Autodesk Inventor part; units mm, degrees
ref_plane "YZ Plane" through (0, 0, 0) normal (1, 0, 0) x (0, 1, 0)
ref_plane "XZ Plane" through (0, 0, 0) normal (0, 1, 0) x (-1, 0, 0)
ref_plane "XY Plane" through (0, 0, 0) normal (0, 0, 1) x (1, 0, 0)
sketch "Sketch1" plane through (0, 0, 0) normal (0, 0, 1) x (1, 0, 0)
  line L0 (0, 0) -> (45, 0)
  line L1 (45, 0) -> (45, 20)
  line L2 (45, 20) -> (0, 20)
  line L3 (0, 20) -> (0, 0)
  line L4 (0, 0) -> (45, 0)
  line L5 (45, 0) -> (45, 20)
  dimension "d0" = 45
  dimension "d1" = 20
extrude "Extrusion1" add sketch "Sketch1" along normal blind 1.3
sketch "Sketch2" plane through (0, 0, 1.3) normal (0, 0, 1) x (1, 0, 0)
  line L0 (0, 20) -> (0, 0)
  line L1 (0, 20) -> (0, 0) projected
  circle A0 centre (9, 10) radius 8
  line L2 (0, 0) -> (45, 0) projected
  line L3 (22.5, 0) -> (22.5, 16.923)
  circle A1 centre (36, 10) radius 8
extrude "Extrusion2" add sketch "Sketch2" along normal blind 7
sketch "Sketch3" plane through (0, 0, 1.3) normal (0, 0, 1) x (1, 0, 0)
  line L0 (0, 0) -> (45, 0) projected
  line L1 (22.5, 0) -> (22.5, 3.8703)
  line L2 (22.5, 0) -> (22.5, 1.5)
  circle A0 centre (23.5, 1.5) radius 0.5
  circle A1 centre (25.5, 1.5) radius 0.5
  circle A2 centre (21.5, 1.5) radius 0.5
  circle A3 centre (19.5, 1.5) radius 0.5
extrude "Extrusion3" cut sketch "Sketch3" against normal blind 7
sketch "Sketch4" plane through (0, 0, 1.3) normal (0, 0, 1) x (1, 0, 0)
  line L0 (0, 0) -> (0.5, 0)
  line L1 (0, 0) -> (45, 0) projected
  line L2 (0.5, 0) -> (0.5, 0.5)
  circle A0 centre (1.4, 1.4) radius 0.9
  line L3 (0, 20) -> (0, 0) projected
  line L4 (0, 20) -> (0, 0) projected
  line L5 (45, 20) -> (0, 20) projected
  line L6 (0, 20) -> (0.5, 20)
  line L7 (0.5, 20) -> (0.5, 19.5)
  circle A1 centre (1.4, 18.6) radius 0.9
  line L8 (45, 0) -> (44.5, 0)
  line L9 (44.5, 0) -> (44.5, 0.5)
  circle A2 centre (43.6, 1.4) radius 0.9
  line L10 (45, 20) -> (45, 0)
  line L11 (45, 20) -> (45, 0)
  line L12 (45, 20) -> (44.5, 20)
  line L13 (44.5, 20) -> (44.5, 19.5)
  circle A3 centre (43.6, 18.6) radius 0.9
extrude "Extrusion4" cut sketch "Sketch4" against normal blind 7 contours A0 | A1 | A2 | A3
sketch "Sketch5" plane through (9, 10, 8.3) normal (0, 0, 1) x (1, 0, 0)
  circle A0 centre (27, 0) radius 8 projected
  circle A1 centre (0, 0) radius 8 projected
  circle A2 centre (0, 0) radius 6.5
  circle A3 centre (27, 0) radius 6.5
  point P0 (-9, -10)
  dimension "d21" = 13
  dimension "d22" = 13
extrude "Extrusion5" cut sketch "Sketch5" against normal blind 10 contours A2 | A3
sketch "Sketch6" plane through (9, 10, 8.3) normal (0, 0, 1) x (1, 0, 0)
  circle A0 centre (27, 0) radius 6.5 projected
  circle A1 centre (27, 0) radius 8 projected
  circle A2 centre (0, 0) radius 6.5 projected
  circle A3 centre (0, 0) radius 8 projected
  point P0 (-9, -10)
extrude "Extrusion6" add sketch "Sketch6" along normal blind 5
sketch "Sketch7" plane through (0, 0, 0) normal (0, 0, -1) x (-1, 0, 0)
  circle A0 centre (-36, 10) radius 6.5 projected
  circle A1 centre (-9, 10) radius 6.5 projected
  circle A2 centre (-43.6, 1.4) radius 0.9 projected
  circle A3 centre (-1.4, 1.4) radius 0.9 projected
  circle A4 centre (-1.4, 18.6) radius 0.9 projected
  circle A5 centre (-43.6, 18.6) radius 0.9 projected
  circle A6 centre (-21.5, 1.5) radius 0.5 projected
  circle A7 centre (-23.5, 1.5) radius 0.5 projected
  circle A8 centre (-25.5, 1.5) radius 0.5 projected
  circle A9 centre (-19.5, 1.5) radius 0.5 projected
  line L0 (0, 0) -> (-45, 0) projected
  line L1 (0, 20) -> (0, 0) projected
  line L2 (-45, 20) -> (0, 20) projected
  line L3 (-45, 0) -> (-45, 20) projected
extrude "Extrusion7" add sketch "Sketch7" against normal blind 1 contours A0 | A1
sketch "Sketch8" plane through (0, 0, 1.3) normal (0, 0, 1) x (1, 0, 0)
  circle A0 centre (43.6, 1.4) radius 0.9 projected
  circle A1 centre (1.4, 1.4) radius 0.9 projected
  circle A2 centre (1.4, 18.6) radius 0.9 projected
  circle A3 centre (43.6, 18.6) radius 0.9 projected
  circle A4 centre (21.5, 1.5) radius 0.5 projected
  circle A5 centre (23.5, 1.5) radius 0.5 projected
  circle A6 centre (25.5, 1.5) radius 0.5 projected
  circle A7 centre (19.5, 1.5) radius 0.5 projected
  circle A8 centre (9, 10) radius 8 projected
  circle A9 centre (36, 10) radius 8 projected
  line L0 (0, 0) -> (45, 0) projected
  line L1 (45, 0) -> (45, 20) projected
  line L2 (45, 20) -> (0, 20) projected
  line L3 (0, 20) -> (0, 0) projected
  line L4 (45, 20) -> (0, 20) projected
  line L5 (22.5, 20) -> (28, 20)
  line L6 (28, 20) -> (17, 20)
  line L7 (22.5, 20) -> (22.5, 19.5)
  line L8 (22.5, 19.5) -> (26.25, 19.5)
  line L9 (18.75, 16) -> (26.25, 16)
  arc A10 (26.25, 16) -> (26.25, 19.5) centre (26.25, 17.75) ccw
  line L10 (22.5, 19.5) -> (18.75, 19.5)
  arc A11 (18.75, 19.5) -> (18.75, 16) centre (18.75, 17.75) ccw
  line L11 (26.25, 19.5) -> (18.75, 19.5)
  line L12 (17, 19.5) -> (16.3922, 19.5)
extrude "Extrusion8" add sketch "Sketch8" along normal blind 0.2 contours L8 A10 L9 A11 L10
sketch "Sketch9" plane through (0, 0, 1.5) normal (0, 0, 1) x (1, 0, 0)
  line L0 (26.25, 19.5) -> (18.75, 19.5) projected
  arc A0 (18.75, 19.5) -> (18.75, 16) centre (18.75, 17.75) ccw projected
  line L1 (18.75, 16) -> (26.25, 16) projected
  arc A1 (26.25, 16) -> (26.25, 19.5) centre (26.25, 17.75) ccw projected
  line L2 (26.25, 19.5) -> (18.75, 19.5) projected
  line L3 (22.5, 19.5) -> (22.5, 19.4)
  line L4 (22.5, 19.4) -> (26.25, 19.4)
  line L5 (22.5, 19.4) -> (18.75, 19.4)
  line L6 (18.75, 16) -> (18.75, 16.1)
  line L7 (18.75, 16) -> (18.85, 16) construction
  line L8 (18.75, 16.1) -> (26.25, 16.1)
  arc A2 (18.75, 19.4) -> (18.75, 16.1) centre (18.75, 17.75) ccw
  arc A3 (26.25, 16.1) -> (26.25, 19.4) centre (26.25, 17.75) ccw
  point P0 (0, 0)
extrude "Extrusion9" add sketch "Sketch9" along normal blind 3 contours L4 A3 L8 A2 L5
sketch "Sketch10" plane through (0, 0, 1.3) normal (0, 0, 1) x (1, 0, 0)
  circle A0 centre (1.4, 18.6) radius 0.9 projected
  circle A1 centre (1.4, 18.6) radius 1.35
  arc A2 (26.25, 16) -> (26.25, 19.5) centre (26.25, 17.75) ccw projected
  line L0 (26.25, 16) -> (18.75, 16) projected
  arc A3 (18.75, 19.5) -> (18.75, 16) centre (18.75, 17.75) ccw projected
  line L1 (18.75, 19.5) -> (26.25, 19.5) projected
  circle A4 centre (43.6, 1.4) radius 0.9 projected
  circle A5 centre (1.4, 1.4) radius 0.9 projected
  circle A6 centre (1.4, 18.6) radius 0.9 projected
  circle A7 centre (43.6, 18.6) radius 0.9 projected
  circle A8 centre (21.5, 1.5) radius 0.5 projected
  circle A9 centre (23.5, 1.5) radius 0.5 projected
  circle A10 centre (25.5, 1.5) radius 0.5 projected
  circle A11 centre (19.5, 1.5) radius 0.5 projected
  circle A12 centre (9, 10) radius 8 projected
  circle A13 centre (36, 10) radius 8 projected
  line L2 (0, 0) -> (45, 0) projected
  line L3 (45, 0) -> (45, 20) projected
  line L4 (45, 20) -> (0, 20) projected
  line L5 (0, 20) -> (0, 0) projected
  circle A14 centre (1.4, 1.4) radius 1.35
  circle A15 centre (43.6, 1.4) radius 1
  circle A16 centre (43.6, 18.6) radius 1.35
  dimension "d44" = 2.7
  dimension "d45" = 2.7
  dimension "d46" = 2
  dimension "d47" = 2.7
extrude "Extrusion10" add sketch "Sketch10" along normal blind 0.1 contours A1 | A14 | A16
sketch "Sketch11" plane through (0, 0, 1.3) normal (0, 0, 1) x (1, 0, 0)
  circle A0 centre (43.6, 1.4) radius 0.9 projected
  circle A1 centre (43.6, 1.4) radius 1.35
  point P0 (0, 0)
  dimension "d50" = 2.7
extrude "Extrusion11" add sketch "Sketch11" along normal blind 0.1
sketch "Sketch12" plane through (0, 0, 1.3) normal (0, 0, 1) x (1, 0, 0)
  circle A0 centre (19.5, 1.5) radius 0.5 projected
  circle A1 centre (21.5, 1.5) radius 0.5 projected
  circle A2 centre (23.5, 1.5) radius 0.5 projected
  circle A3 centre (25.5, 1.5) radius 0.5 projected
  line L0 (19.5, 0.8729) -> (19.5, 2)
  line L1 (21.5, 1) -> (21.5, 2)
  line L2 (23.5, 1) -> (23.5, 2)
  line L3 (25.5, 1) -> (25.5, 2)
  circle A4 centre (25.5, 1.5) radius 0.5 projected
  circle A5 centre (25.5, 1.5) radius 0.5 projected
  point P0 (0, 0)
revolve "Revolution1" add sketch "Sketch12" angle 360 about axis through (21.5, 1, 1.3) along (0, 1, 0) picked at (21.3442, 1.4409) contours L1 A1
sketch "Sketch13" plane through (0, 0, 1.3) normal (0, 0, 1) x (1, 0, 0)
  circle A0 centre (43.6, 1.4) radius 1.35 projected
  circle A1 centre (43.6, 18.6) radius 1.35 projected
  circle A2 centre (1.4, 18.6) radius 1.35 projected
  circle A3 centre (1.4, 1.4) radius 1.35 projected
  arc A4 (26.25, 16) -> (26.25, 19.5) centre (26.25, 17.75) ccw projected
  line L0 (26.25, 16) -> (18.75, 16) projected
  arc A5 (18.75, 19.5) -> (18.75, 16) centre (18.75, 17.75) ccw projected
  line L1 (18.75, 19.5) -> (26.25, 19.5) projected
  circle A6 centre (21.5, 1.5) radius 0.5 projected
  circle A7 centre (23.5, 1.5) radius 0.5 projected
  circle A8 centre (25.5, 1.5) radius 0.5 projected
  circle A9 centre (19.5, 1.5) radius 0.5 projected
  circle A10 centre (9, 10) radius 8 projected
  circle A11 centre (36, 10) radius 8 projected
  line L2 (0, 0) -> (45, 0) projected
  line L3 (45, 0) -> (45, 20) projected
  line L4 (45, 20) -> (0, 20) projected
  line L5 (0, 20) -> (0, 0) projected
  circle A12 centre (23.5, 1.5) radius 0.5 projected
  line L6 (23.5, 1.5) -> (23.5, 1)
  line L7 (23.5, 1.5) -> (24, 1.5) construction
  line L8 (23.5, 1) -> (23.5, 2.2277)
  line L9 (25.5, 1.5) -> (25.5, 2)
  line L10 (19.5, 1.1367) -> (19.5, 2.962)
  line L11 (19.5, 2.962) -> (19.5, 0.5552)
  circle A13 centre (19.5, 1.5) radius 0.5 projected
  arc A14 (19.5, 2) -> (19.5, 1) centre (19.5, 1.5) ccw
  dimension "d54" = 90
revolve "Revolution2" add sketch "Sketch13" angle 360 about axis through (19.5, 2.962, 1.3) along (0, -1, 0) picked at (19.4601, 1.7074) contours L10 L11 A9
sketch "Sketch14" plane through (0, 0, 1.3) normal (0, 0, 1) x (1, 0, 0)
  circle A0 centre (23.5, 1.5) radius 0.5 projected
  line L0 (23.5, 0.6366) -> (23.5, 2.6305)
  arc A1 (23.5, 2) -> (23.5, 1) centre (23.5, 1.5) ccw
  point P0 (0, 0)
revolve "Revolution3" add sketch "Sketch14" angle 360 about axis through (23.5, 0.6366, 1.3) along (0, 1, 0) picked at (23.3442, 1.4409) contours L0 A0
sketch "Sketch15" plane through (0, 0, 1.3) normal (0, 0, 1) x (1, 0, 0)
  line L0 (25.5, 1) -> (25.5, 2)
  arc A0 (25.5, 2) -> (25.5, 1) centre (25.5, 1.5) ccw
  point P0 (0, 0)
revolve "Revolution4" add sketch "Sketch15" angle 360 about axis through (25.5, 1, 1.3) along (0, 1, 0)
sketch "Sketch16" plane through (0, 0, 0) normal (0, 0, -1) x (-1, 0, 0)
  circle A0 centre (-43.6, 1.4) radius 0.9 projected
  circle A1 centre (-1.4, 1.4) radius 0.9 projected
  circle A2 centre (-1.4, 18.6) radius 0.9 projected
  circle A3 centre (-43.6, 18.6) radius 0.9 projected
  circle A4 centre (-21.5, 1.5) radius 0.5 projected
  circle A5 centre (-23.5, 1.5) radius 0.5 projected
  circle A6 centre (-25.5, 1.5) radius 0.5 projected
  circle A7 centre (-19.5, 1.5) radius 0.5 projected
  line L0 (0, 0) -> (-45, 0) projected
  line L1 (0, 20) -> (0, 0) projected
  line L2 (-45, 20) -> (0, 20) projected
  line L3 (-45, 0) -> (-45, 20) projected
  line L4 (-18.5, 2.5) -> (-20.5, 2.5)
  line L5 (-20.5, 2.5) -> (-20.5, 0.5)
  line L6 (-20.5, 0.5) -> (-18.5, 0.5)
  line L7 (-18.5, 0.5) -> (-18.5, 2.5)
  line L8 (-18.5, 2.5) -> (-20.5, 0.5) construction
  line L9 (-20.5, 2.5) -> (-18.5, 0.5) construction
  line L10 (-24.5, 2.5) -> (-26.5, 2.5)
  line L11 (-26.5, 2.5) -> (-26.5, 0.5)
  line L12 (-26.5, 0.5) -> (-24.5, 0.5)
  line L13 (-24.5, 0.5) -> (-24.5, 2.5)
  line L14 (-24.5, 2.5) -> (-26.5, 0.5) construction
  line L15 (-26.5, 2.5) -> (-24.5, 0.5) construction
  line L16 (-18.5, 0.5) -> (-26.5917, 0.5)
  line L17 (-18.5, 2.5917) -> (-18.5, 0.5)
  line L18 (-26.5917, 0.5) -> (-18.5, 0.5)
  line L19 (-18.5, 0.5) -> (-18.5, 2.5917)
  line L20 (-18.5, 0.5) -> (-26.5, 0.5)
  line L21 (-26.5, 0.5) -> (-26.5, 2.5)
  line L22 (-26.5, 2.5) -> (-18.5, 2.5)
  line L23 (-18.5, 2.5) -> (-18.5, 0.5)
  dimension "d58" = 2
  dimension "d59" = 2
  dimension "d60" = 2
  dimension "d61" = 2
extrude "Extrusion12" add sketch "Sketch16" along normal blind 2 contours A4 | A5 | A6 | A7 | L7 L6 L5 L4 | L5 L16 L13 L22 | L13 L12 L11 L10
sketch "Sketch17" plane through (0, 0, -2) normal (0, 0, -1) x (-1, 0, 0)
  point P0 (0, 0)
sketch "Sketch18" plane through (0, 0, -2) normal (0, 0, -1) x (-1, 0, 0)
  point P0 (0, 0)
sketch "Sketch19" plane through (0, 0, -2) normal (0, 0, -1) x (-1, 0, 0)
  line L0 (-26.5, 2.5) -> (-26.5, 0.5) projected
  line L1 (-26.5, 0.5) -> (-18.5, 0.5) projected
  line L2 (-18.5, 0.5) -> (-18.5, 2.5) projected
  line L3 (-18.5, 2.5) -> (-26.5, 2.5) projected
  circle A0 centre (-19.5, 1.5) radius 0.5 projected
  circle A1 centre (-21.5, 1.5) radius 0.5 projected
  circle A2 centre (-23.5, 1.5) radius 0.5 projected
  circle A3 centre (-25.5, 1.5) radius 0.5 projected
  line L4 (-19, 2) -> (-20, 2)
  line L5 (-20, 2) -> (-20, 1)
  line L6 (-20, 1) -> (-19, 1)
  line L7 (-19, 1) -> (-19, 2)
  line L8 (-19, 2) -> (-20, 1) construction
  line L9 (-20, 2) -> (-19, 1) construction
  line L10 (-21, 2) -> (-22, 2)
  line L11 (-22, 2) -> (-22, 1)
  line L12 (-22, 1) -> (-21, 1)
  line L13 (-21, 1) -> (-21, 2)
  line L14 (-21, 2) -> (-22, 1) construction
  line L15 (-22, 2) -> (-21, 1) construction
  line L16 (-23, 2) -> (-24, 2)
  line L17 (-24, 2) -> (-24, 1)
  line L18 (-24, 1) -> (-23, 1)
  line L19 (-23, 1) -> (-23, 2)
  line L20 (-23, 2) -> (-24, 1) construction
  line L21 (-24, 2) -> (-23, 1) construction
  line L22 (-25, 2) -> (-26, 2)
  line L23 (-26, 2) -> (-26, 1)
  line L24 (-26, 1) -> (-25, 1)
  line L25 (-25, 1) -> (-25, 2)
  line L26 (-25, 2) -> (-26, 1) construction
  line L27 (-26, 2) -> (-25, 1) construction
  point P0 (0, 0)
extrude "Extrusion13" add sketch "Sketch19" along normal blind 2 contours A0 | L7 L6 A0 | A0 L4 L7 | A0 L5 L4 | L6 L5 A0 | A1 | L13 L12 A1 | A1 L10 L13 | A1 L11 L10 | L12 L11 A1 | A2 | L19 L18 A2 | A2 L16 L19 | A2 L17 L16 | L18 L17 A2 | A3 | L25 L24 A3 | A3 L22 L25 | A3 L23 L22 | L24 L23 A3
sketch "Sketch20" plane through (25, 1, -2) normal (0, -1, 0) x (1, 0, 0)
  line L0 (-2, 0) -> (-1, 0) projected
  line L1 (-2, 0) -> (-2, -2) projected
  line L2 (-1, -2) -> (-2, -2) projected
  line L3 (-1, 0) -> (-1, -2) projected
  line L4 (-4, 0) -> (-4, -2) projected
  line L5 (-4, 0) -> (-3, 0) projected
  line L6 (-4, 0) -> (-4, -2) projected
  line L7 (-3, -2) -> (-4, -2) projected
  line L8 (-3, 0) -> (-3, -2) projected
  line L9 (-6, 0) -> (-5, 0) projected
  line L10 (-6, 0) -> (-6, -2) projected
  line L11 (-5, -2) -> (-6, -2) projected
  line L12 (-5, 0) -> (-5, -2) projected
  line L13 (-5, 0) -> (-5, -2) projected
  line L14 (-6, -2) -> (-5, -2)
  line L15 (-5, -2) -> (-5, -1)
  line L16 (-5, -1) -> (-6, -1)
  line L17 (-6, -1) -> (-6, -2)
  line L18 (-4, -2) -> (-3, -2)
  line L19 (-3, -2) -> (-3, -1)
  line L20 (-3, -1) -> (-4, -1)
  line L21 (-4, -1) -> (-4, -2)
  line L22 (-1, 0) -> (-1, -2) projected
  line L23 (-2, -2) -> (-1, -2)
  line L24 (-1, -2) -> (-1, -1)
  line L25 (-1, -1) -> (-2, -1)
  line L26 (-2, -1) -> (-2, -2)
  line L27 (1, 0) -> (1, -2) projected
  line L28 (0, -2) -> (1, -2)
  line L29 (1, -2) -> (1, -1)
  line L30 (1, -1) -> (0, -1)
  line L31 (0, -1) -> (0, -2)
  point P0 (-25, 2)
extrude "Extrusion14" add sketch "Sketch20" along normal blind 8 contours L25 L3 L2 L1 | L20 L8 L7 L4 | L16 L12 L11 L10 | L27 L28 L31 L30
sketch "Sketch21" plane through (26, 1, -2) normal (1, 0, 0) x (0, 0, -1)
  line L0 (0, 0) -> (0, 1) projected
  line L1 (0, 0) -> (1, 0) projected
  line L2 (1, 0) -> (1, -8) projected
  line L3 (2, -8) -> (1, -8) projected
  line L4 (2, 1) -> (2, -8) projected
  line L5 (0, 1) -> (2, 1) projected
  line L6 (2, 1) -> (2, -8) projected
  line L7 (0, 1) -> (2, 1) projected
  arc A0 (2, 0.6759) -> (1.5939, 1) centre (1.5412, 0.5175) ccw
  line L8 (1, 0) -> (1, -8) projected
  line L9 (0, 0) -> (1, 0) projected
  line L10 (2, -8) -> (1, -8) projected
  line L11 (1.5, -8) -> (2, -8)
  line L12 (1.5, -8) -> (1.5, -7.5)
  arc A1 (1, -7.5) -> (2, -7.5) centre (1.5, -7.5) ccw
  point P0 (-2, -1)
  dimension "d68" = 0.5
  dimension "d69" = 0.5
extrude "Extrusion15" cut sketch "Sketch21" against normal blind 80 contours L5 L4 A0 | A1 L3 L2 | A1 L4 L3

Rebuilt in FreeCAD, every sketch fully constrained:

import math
import FreeCAD as App
import Part
import Sketcher


def add_polygon(sketch, points):
    """Adds a closed chain of lines whose ends are joined by coincident constraints."""
    first, n = sketch.GeometryCount, len(points)
    for a, b in zip(points, points[1:] + points[:1]):
        sketch.addGeometry(Part.LineSegment(App.Vector(*a, 0), App.Vector(*b, 0)), False)
    for i in range(n):
        sketch.addConstraint(Sketcher.Constraint("Coincident", first + i, 2, first + (i + 1) % n, 1))

doc = App.newDocument("Part")
body = doc.addObject("PartDesign::Body", "Body")
body.AllowCompound = True

sketch1 = doc.addObject("Sketcher::SketchObject", "Sketch")
body.addObject(sketch1)
sketch1.AttachmentSupport = (doc.XY_Plane, [""])
sketch1.MapMode = "FlatFace"
add_polygon(sketch1, [(0, 20), (0, 0), (45, 0), (45, 20)])
sketch1.addConstraint(Sketcher.Constraint("Vertical", 0))
sketch1.addConstraint(Sketcher.Constraint("Horizontal", 1))
sketch1.addConstraint(Sketcher.Constraint("Vertical", 2))
sketch1.addConstraint(Sketcher.Constraint("Horizontal", 3))
sketch1.addConstraint(Sketcher.Constraint("Coincident", 0, 2, -1, 1))
sketch1.addConstraint(Sketcher.Constraint("DistanceX", 1, 1, 1, 2, 45.0))
sketch1.addConstraint(Sketcher.Constraint("DistanceY", 0, 2, 0, 1, 20.0))
pad1 = doc.addObject("PartDesign::Pad", "Pad")
body.addObject(pad1)
pad1.Profile = sketch1
pad1.Length = 1.3

sketch2 = doc.addObject("Sketcher::SketchObject", "Sketch001")
body.addObject(sketch2)
sketch2.AttachmentSupport = (doc.XY_Plane, [""])
sketch2.MapMode = "FlatFace"
sketch2.AttachmentOffset = App.Placement(App.Vector(0, 0, 1.3), App.Rotation())
sketch2.addGeometry(Part.Circle(App.Vector(9, 10, 0), App.Vector(0, 0, 1), 8), False)
sketch2.addGeometry(Part.Circle(App.Vector(36, 10, 0), App.Vector(0, 0, 1), 8), False)
sketch2.addConstraint(Sketcher.Constraint("Equal", 0, 1))
sketch2.addConstraint(Sketcher.Constraint("Horizontal", 0, 3, 1, 3))
sketch2.addConstraint(Sketcher.Constraint("Diameter", 0, 16.0))
sketch2.addConstraint(Sketcher.Constraint("DistanceX", -1, 1, 0, 3, 9.0))
sketch2.addConstraint(Sketcher.Constraint("DistanceY", -1, 1, 0, 3, 10.0))
sketch2.addConstraint(Sketcher.Constraint("DistanceX", -1, 1, 1, 3, 36.0))
pad2 = doc.addObject("PartDesign::Pad", "Pad001")
body.addObject(pad2)
pad2.Profile = sketch2
pad2.Length = 7

sketch3 = doc.addObject("Sketcher::SketchObject", "Sketch002")
body.addObject(sketch3)
sketch3.AttachmentSupport = (doc.XY_Plane, [""])
sketch3.MapMode = "FlatFace"
sketch3.AttachmentOffset = App.Placement(App.Vector(0, 0, 1.3), App.Rotation())
sketch3.addGeometry(Part.Circle(App.Vector(23.5, 1.5, 0), App.Vector(0, 0, 1), 0.5), False)
sketch3.addGeometry(Part.Circle(App.Vector(25.5, 1.5, 0), App.Vector(0, 0, 1), 0.5), False)
sketch3.addGeometry(Part.Circle(App.Vector(21.5, 1.5, 0), App.Vector(0, 0, 1), 0.5), False)
sketch3.addGeometry(Part.Circle(App.Vector(19.5, 1.5, 0), App.Vector(0, 0, 1), 0.5), False)
sketch3.addConstraint(Sketcher.Constraint("Equal", 0, 1))
sketch3.addConstraint(Sketcher.Constraint("Equal", 1, 2))
sketch3.addConstraint(Sketcher.Constraint("Equal", 2, 3))
sketch3.addConstraint(Sketcher.Constraint("Horizontal", 0, 3, 1, 3))
sketch3.addConstraint(Sketcher.Constraint("Horizontal", 1, 3, 2, 3))
sketch3.addConstraint(Sketcher.Constraint("Horizontal", 2, 3, 3, 3))
sketch3.addConstraint(Sketcher.Constraint("Diameter", 0, 1.0))
sketch3.addConstraint(Sketcher.Constraint("DistanceX", 0, 3, 1, 3, 2.0))
sketch3.addConstraint(Sketcher.Constraint("DistanceX", 2, 3, 0, 3, 2.0))
sketch3.addConstraint(Sketcher.Constraint("DistanceX", 3, 3, 2, 3, 2.0))
sketch3.addConstraint(Sketcher.Constraint("DistanceX", -1, 1, 0, 3, 23.5))
sketch3.addConstraint(Sketcher.Constraint("DistanceY", -1, 1, 0, 3, 1.5))
pocket1 = doc.addObject("PartDesign::Pocket", "Pocket")
body.addObject(pocket1)
pocket1.Profile = sketch3
pocket1.Length = 7

sketch4 = doc.addObject("Sketcher::SketchObject", "Sketch003")
body.addObject(sketch4)
sketch4.AttachmentSupport = (doc.XY_Plane, [""])
sketch4.MapMode = "FlatFace"
sketch4.AttachmentOffset = App.Placement(App.Vector(0, 0, 1.3), App.Rotation())
sketch4.addGeometry(Part.Circle(App.Vector(1.4, 1.4, 0), App.Vector(0, 0, 1), 0.9), False)
sketch4.addGeometry(Part.Circle(App.Vector(1.4, 18.6, 0), App.Vector(0, 0, 1), 0.9), False)
sketch4.addGeometry(Part.Circle(App.Vector(43.6, 1.4, 0), App.Vector(0, 0, 1), 0.9), False)
sketch4.addGeometry(Part.Circle(App.Vector(43.6, 18.6, 0), App.Vector(0, 0, 1), 0.9), False)
sketch4.addConstraint(Sketcher.Constraint("Equal", 0, 1))
sketch4.addConstraint(Sketcher.Constraint("Equal", 1, 2))
sketch4.addConstraint(Sketcher.Constraint("Equal", 2, 3))
sketch4.addConstraint(Sketcher.Constraint("Horizontal", 0, 3, 2, 3))
sketch4.addConstraint(Sketcher.Constraint("Horizontal", 1, 3, 3, 3))
sketch4.addConstraint(Sketcher.Constraint("Vertical", 0, 3, 1, 3))
sketch4.addConstraint(Sketcher.Constraint("Vertical", 2, 3, 3, 3))
sketch4.addConstraint(Sketcher.Constraint("Diameter", 0, 1.8))
sketch4.addConstraint(Sketcher.Constraint("DistanceX", -1, 1, 0, 3, 1.4))
sketch4.addConstraint(Sketcher.Constraint("DistanceY", -1, 1, 0, 3, 1.4))
sketch4.addConstraint(Sketcher.Constraint("DistanceY", -1, 1, 1, 3, 18.6))
sketch4.addConstraint(Sketcher.Constraint("DistanceX", -1, 1, 2, 3, 43.6))
pocket2 = doc.addObject("PartDesign::Pocket", "Pocket001")
body.addObject(pocket2)
pocket2.Profile = sketch4
pocket2.Length = 7

sketch5 = doc.addObject("Sketcher::SketchObject", "Sketch004")
body.addObject(sketch5)
sketch5.AttachmentSupport = (doc.XY_Plane, [""])
sketch5.MapMode = "FlatFace"
sketch5.AttachmentOffset = App.Placement(App.Vector(0, 0, 8.3), App.Rotation())
sketch5.addGeometry(Part.Circle(App.Vector(9, 10, 0), App.Vector(0, 0, 1), 6), False)
sketch5.addGeometry(Part.Circle(App.Vector(36, 10, 0), App.Vector(0, 0, 1), 6), False)
sketch5.addConstraint(Sketcher.Constraint("Equal", 0, 1))
sketch5.addConstraint(Sketcher.Constraint("Horizontal", 0, 3, 1, 3))
sketch5.addConstraint(Sketcher.Constraint("Diameter", 0, 13.0))
sketch5.addConstraint(Sketcher.Constraint("DistanceX", -1, 1, 0, 3, 9.0))
sketch5.addConstraint(Sketcher.Constraint("DistanceY", -1, 1, 0, 3, 10.0))
sketch5.addConstraint(Sketcher.Constraint("DistanceX", -1, 1, 1, 3, 36.0))
pocket3 = doc.addObject("PartDesign::Pocket", "Pocket002")
body.addObject(pocket3)
pocket3.Profile = sketch5
pocket3.Length = 10

sketch6 = doc.addObject("Sketcher::SketchObject", "Sketch005")
body.addObject(sketch6)
sketch6.AttachmentSupport = (doc.XY_Plane, [""])
sketch6.MapMode = "FlatFace"
sketch6.AttachmentOffset = App.Placement(App.Vector(0, 0, 8.3), App.Rotation())
sketch6.addGeometry(Part.Circle(App.Vector(36, 10, 0), App.Vector(0, 0, 1), 8), False)
sketch6.addGeometry(Part.Circle(App.Vector(36, 10, 0), App.Vector(0, 0, 1), 6), False)
sketch6.addGeometry(Part.Circle(App.Vector(9, 10, 0), App.Vector(0, 0, 1), 8), False)
sketch6.addGeometry(Part.Circle(App.Vector(9, 10, 0), App.Vector(0, 0, 1), 6), False)
sketch6.addConstraint(Sketcher.Constraint("Coincident", 1, 3, 0, 3))
sketch6.addConstraint(Sketcher.Constraint("Coincident", 3, 3, 2, 3))
sketch6.addConstraint(Sketcher.Constraint("Equal", 0, 2))
sketch6.addConstraint(Sketcher.Constraint("Equal", 1, 3))
sketch6.addConstraint(Sketcher.Constraint("Horizontal", 1, 3, 2, 3))
sketch6.addConstraint(Sketcher.Constraint("Diameter", 0, 16.0))
sketch6.addConstraint(Sketcher.Constraint("Diameter", 1, 13.0))
sketch6.addConstraint(Sketcher.Constraint("DistanceX", -1, 1, 0, 3, 36.0))
sketch6.addConstraint(Sketcher.Constraint("DistanceY", -1, 1, 0, 3, 10.0))
sketch6.addConstraint(Sketcher.Constraint("DistanceX", -1, 1, 2, 3, 9.0))
pad3 = doc.addObject("PartDesign::Pad", "Pad002")
body.addObject(pad3)
pad3.Profile = sketch6
pad3.Length = 5

sketch7 = doc.addObject("Sketcher::SketchObject", "Sketch006")
body.addObject(sketch7)
sketch7.AttachmentSupport = (doc.XY_Plane, [""])
sketch7.MapMode = "FlatFace"
sketch7.addGeometry(Part.Circle(App.Vector(36, 10, 0), App.Vector(0, 0, 1), 6), False)
sketch7.addGeometry(Part.Circle(App.Vector(9, 10, 0), App.Vector(0, 0, 1), 6), False)
sketch7.addConstraint(Sketcher.Constraint("Equal", 0, 1))
sketch7.addConstraint(Sketcher.Constraint("Horizontal", 0, 3, 1, 3))
sketch7.addConstraint(Sketcher.Constraint("Diameter", 0, 13.0))
sketch7.addConstraint(Sketcher.Constraint("DistanceX", -1, 1, 0, 3, 36.0))
sketch7.addConstraint(Sketcher.Constraint("DistanceY", -1, 1, 0, 3, 10.0))
sketch7.addConstraint(Sketcher.Constraint("DistanceX", -1, 1, 1, 3, 9.0))
pad4 = doc.addObject("PartDesign::Pad", "Pad003")
body.addObject(pad4)
pad4.Profile = sketch7
pad4.Length = 1

sketch8 = doc.addObject("Sketcher::SketchObject", "Sketch007")
body.addObject(sketch8)
sketch8.AttachmentSupport = (doc.XY_Plane, [""])
sketch8.MapMode = "FlatFace"
sketch8.AttachmentOffset = App.Placement(App.Vector(0, 0, 1.3), App.Rotation())
sketch8.addGeometry(Part.LineSegment(App.Vector(26.2, 19.5, 0), App.Vector(18.8, 19.5, 0)), False)
sketch8.addGeometry(Part.ArcOfCircle(Part.Circle(App.Vector(18.8, 17.8, 0), App.Vector(0, 0, 1), 1.8), math.radians(90), math.radians(270)), False)
sketch8.addGeometry(Part.LineSegment(App.Vector(18.8, 16, 0), App.Vector(26.2, 16, 0)), False)
sketch8.addGeometry(Part.ArcOfCircle(Part.Circle(App.Vector(26.2, 17.8, 0), App.Vector(0, 0, 1), 1.8), math.radians(-90), math.radians(90)), False)
sketch8.addConstraint(Sketcher.Constraint("Tangent", 0, 2, 1, 1))
sketch8.addConstraint(Sketcher.Constraint("Tangent", 1, 2, 2, 1))
sketch8.addConstraint(Sketcher.Constraint("Tangent", 2, 2, 3, 1))
sketch8.addConstraint(Sketcher.Constraint("Tangent", 3, 2, 0, 1))
sketch8.addConstraint(Sketcher.Constraint("Horizontal", 0))
sketch8.addConstraint(Sketcher.Constraint("Horizontal", 2))
sketch8.addConstraint(Sketcher.Constraint("Radius", 1, 1.75))
sketch8.addConstraint(Sketcher.Constraint("DistanceX", 0, 2, 0, 1, 7.5))
sketch8.addConstraint(Sketcher.Constraint("DistanceY", -1, 1, 1, 2, 16.0))
sketch8.addConstraint(Sketcher.Constraint("DistanceX", -1, 1, 1, 3, 18.75))
pad5 = doc.addObject("PartDesign::Pad", "Pad004")
body.addObject(pad5)
pad5.Profile = sketch8
pad5.Length = 0.2

sketch9 = doc.addObject("Sketcher::SketchObject", "Sketch008")
body.addObject(sketch9)
sketch9.AttachmentSupport = (doc.XY_Plane, [""])
sketch9.MapMode = "FlatFace"
sketch9.AttachmentOffset = App.Placement(App.Vector(0, 0, 1.5), App.Rotation())
sketch9.addGeometry(Part.LineSegment(App.Vector(26.2, 19.4, 0), App.Vector(18.8, 19.4, 0)), False)
sketch9.addGeometry(Part.ArcOfCircle(Part.Circle(App.Vector(18.8, 17.8, 0), App.Vector(0, 0, 1), 1.6), math.radians(90), math.radians(270)), False)
sketch9.addGeometry(Part.LineSegment(App.Vector(18.8, 16.1, 0), App.Vector(26.2, 16.1, 0)), False)
sketch9.addGeometry(Part.ArcOfCircle(Part.Circle(App.Vector(26.2, 17.8, 0), App.Vector(0, 0, 1), 1.6), math.radians(-90), math.radians(90)), False)
sketch9.addConstraint(Sketcher.Constraint("Tangent", 0, 2, 1, 1))
sketch9.addConstraint(Sketcher.Constraint("Tangent", 1, 2, 2, 1))
sketch9.addConstraint(Sketcher.Constraint("Tangent", 2, 2, 3, 1))
sketch9.addConstraint(Sketcher.Constraint("Tangent", 3, 2, 0, 1))
sketch9.addConstraint(Sketcher.Constraint("Horizontal", 0))
sketch9.addConstraint(Sketcher.Constraint("Horizontal", 2))
sketch9.addConstraint(Sketcher.Constraint("Radius", 1, 1.65))
sketch9.addConstraint(Sketcher.Constraint("DistanceX", 0, 2, 0, 1, 7.5))
sketch9.addConstraint(Sketcher.Constraint("DistanceY", -1, 1, 0, 2, 19.4))
sketch9.addConstraint(Sketcher.Constraint("DistanceX", -1, 1, 1, 3, 18.75))
pad6 = doc.addObject("PartDesign::Pad", "Pad005")
body.addObject(pad6)
pad6.Profile = sketch9
pad6.Length = 3

sketch10 = doc.addObject("Sketcher::SketchObject", "Sketch009")
body.addObject(sketch10)
sketch10.AttachmentSupport = (doc.XY_Plane, [""])
sketch10.MapMode = "FlatFace"
sketch10.AttachmentOffset = App.Placement(App.Vector(0, 0, 1.3), App.Rotation())
sketch10.addGeometry(Part.Circle(App.Vector(1.4, 18.6, 0), App.Vector(0, 0, 1), 1.4), False)
sketch10.addGeometry(Part.Circle(App.Vector(1.4, 18.6, 0), App.Vector(0, 0, 1), 0.9), False)
sketch10.addGeometry(Part.Circle(App.Vector(1.4, 1.4, 0), App.Vector(0, 0, 1), 1.4), False)
sketch10.addGeometry(Part.Circle(App.Vector(1.4, 1.4, 0), App.Vector(0, 0, 1), 0.9), False)
sketch10.addGeometry(Part.Circle(App.Vector(43.6, 18.6, 0), App.Vector(0, 0, 1), 1.4), False)
sketch10.addGeometry(Part.Circle(App.Vector(43.6, 18.6, 0), App.Vector(0, 0, 1), 0.9), False)
sketch10.addConstraint(Sketcher.Constraint("Coincident", 1, 3, 0, 3))
sketch10.addConstraint(Sketcher.Constraint("Coincident", 3, 3, 2, 3))
sketch10.addConstraint(Sketcher.Constraint("Coincident", 5, 3, 4, 3))
sketch10.addConstraint(Sketcher.Constraint("Equal", 0, 2))
sketch10.addConstraint(Sketcher.Constraint("Equal", 1, 3))
sketch10.addConstraint(Sketcher.Constraint("Equal", 2, 4))
sketch10.addConstraint(Sketcher.Constraint("Equal", 3, 5))
sketch10.addConstraint(Sketcher.Constraint("Horizontal", 1, 3, 4, 3))
sketch10.addConstraint(Sketcher.Constraint("Vertical", 1, 3, 2, 3))
sketch10.addConstraint(Sketcher.Constraint("Diameter", 0, 2.7))
sketch10.addConstraint(Sketcher.Constraint("Diameter", 1, 1.8))
sketch10.addConstraint(Sketcher.Constraint("DistanceX", -1, 1, 0, 3, 1.4))
sketch10.addConstraint(Sketcher.Constraint("DistanceY", -1, 1, 0, 3, 18.6))
sketch10.addConstraint(Sketcher.Constraint("DistanceY", -1, 1, 2, 3, 1.4))
sketch10.addConstraint(Sketcher.Constraint("DistanceX", -1, 1, 4, 3, 43.6))
pad7 = doc.addObject("PartDesign::Pad", "Pad006")
body.addObject(pad7)
pad7.Profile = sketch10
pad7.Length = 0.1

sketch11 = doc.addObject("Sketcher::SketchObject", "Sketch010")
body.addObject(sketch11)
sketch11.AttachmentSupport = (doc.XY_Plane, [""])
sketch11.MapMode = "FlatFace"
sketch11.AttachmentOffset = App.Placement(App.Vector(0, 0, 1.3), App.Rotation())
sketch11.addGeometry(Part.Circle(App.Vector(43.6, 1.4, 0), App.Vector(0, 0, 1), 1.4), False)
sketch11.addGeometry(Part.Circle(App.Vector(43.6, 1.4, 0), App.Vector(0, 0, 1), 0.9), False)
sketch11.addConstraint(Sketcher.Constraint("Coincident", 1, 3, 0, 3))
sketch11.addConstraint(Sketcher.Constraint("Diameter", 0, 2.7))
sketch11.addConstraint(Sketcher.Constraint("Diameter", 1, 1.8))
sketch11.addConstraint(Sketcher.Constraint("DistanceX", -1, 1, 0, 3, 43.6))
sketch11.addConstraint(Sketcher.Constraint("DistanceY", -1, 1, 0, 3, 1.4))
pad8 = doc.addObject("PartDesign::Pad", "Pad007")
body.addObject(pad8)
pad8.Profile = sketch11
pad8.Length = 0.1

sketch12 = doc.addObject("Sketcher::SketchObject", "Sketch011")
body.addObject(sketch12)
sketch12.AttachmentSupport = (doc.XY_Plane, [""])
sketch12.MapMode = "FlatFace"
sketch12.AttachmentOffset = App.Placement(App.Vector(0, 0, 1.3), App.Rotation())
sketch12.addGeometry(Part.LineSegment(App.Vector(21.5, 1, 0), App.Vector(21.5, 2, 0)), False)
sketch12.addGeometry(Part.ArcOfCircle(Part.Circle(App.Vector(21.5, 1.5, 0), App.Vector(0, 0, 1), 0.5), math.radians(90), math.radians(270)), False)
sketch12.addGeometry(Part.LineSegment(App.Vector(21.5, 1, 0), App.Vector(21.5, 2, 0)), True)
sketch12.addConstraint(Sketcher.Constraint("Coincident", 0, 1, 1, 2))
sketch12.addConstraint(Sketcher.Constraint("Coincident", 1, 1, 0, 2))
sketch12.addConstraint(Sketcher.Constraint("Vertical", 0))
sketch12.addConstraint(Sketcher.Constraint("Vertical", 2))
sketch12.addConstraint(Sketcher.Constraint("Coincident", 2, 1, 0, 1))
sketch12.addConstraint(Sketcher.Constraint("Vertical", 1, 3, 0, 1))
sketch12.addConstraint(Sketcher.Constraint("Equal", 0, 2))
sketch12.addConstraint(Sketcher.Constraint("Radius", 1, 0.5))
sketch12.addConstraint(Sketcher.Constraint("DistanceY", -1, 1, 0, 1, 1.0))
sketch12.addConstraint(Sketcher.Constraint("DistanceX", -1, 1, 1, 3, 21.5))
revolution = doc.addObject("PartDesign::Revolution", "Revolution")
body.addObject(revolution)
revolution.Profile = sketch12
revolution.ReferenceAxis = (sketch12, ["Axis0"])
revolution.Angle = 360

sketch13 = doc.addObject("Sketcher::SketchObject", "Sketch012")
body.addObject(sketch13)
sketch13.AttachmentSupport = (doc.XY_Plane, [""])
sketch13.MapMode = "FlatFace"
sketch13.AttachmentOffset = App.Placement(App.Vector(0, 0, 1.3), App.Rotation())
sketch13.addGeometry(Part.LineSegment(App.Vector(19.5, 1, 0), App.Vector(19.5, 2, 0)), False)
sketch13.addGeometry(Part.ArcOfCircle(Part.Circle(App.Vector(19.5, 1.5, 0), App.Vector(0, 0, 1), 0.5), math.radians(90), math.radians(270)), False)
sketch13.addGeometry(Part.LineSegment(App.Vector(19.5, 2, 0), App.Vector(19.5, 1, 0)), True)
sketch13.addConstraint(Sketcher.Constraint("Coincident", 0, 1, 1, 2))
sketch13.addConstraint(Sketcher.Constraint("Coincident", 1, 1, 0, 2))
sketch13.addConstraint(Sketcher.Constraint("Vertical", 0))
sketch13.addConstraint(Sketcher.Constraint("Vertical", 2))
sketch13.addConstraint(Sketcher.Constraint("Coincident", 2, 1, 1, 1))
sketch13.addConstraint(Sketcher.Constraint("Vertical", 1, 3, 0, 1))
sketch13.addConstraint(Sketcher.Constraint("Equal", 0, 2))
sketch13.addConstraint(Sketcher.Constraint("Radius", 1, 0.5))
sketch13.addConstraint(Sketcher.Constraint("DistanceY", -1, 1, 0, 1, 1.0))
sketch13.addConstraint(Sketcher.Constraint("DistanceX", -1, 1, 1, 3, 19.5))
revolution2 = doc.addObject("PartDesign::Revolution", "Revolution001")
body.addObject(revolution2)
revolution2.Profile = sketch13
revolution2.ReferenceAxis = (sketch13, ["Axis0"])
revolution2.Angle = 360

sketch14 = doc.addObject("Sketcher::SketchObject", "Sketch013")
body.addObject(sketch14)
sketch14.AttachmentSupport = (doc.XY_Plane, [""])
sketch14.MapMode = "FlatFace"
sketch14.AttachmentOffset = App.Placement(App.Vector(0, 0, 1.3), App.Rotation())
sketch14.addGeometry(Part.LineSegment(App.Vector(23.5, 1, 0), App.Vector(23.5, 2, 0)), False)
sketch14.addGeometry(Part.ArcOfCircle(Part.Circle(App.Vector(23.5, 1.5, 0), App.Vector(0, 0, 1), 0.5), math.radians(90), math.radians(270)), False)
sketch14.addGeometry(Part.LineSegment(App.Vector(23.5, 1, 0), App.Vector(23.5, 2, 0)), True)
sketch14.addConstraint(Sketcher.Constraint("Coincident", 0, 1, 1, 2))
sketch14.addConstraint(Sketcher.Constraint("Coincident", 1, 1, 0, 2))
sketch14.addConstraint(Sketcher.Constraint("Vertical", 0))
sketch14.addConstraint(Sketcher.Constraint("Vertical", 2))
sketch14.addConstraint(Sketcher.Constraint("Coincident", 2, 1, 0, 1))
sketch14.addConstraint(Sketcher.Constraint("Vertical", 1, 3, 0, 1))
sketch14.addConstraint(Sketcher.Constraint("Equal", 0, 2))
sketch14.addConstraint(Sketcher.Constraint("Radius", 1, 0.5))
sketch14.addConstraint(Sketcher.Constraint("DistanceY", -1, 1, 0, 1, 1.0))
sketch14.addConstraint(Sketcher.Constraint("DistanceX", -1, 1, 1, 3, 23.5))
revolution3 = doc.addObject("PartDesign::Revolution", "Revolution002")
body.addObject(revolution3)
revolution3.Profile = sketch14
revolution3.ReferenceAxis = (sketch14, ["Axis0"])
revolution3.Angle = 360

sketch15 = doc.addObject("Sketcher::SketchObject", "Sketch014")
body.addObject(sketch15)
sketch15.AttachmentSupport = (doc.XY_Plane, [""])
sketch15.MapMode = "FlatFace"
sketch15.AttachmentOffset = App.Placement(App.Vector(0, 0, 1.3), App.Rotation())
sketch15.addGeometry(Part.ArcOfCircle(Part.Circle(App.Vector(25.5, 1.5, 0), App.Vector(0, 0, 1), 0.5), math.radians(90), math.radians(270)), False)
sketch15.addGeometry(Part.LineSegment(App.Vector(25.5, 1, 0), App.Vector(25.5, 2, 0)), False)
sketch15.addGeometry(Part.LineSegment(App.Vector(25.5, 1, 0), App.Vector(25.5, 2, 0)), True)
sketch15.addConstraint(Sketcher.Constraint("Coincident", 0, 1, 1, 2))
sketch15.addConstraint(Sketcher.Constraint("Coincident", 1, 1, 0, 2))
sketch15.addConstraint(Sketcher.Constraint("Vertical", 1))
sketch15.addConstraint(Sketcher.Constraint("Vertical", 2))
sketch15.addConstraint(Sketcher.Constraint("Coincident", 2, 1, 1, 1))
sketch15.addConstraint(Sketcher.Constraint("Equal", 1, 2))
sketch15.addConstraint(Sketcher.Constraint("Radius", 0, 0.5))
sketch15.addConstraint(Sketcher.Constraint("DistanceY", -1, 1, 0, 1, 2.0))
sketch15.addConstraint(Sketcher.Constraint("DistanceX", -1, 1, 0, 3, 25.5))
sketch15.addConstraint(Sketcher.Constraint("DistanceX", -1, 1, 0, 1, 25.5))
revolution4 = doc.addObject("PartDesign::Revolution", "Revolution003")
body.addObject(revolution4)
revolution4.Profile = sketch15
revolution4.ReferenceAxis = (sketch15, ["Axis0"])
revolution4.Angle = 360

sketch16 = doc.addObject("Sketcher::SketchObject", "Sketch015")
body.addObject(sketch16)
sketch16.AttachmentSupport = (doc.XY_Plane, [""])
sketch16.MapMode = "FlatFace"
add_polygon(sketch16, [(18.5, 0.5), (18.5, 2.5), (26.5, 2.5), (26.5, 0.5)])
sketch16.addConstraint(Sketcher.Constraint("Vertical", 0))
sketch16.addConstraint(Sketcher.Constraint("Horizontal", 1))
sketch16.addConstraint(Sketcher.Constraint("Vertical", 2))
sketch16.addConstraint(Sketcher.Constraint("Horizontal", 3))
sketch16.addConstraint(Sketcher.Constraint("DistanceY", 0, 1, 0, 2, 2.0))
sketch16.addConstraint(Sketcher.Constraint("DistanceX", 1, 1, 1, 2, 8.0))
sketch16.addConstraint(Sketcher.Constraint("DistanceX", -1, 1, 0, 2, 18.5))
sketch16.addConstraint(Sketcher.Constraint("DistanceY", -1, 1, 0, 2, 2.5))
pad9 = doc.addObject("PartDesign::Pad", "Pad008")
body.addObject(pad9)
pad9.Profile = sketch16
pad9.Length = 2
pad9.Reversed = True

sketch17 = doc.addObject("Sketcher::SketchObject", "Sketch016")
body.addObject(sketch17)
sketch17.AttachmentSupport = (doc.XY_Plane, [""])
sketch17.MapMode = "FlatFace"
sketch17.AttachmentOffset = App.Placement(App.Vector(0, 0, -2), App.Rotation())
add_polygon(sketch17, [(19, 1), (19, 2), (20, 2), (20, 1)])
add_polygon(sketch17, [(21, 1), (21, 2), (22, 2), (22, 1)])
add_polygon(sketch17, [(23, 1), (23, 2), (24, 2), (24, 1)])
add_polygon(sketch17, [(25, 1), (25, 2), (26, 2), (26, 1)])
sketch17.addConstraint(Sketcher.Constraint("Vertical", 0))
sketch17.addConstraint(Sketcher.Constraint("Horizontal", 1))
sketch17.addConstraint(Sketcher.Constraint("Vertical", 2))
sketch17.addConstraint(Sketcher.Constraint("Horizontal", 3))
sketch17.addConstraint(Sketcher.Constraint("Vertical", 4))
sketch17.addConstraint(Sketcher.Constraint("Horizontal", 5))
sketch17.addConstraint(Sketcher.Constraint("Vertical", 6))
sketch17.addConstraint(Sketcher.Constraint("Horizontal", 7))
sketch17.addConstraint(Sketcher.Constraint("Vertical", 8))
sketch17.addConstraint(Sketcher.Constraint("Horizontal", 9))
sketch17.addConstraint(Sketcher.Constraint("Vertical", 10))
sketch17.addConstraint(Sketcher.Constraint("Horizontal", 11))
sketch17.addConstraint(Sketcher.Constraint("Vertical", 12))
sketch17.addConstraint(Sketcher.Constraint("Horizontal", 13))
sketch17.addConstraint(Sketcher.Constraint("Vertical", 14))
sketch17.addConstraint(Sketcher.Constraint("Horizontal", 15))
sketch17.addConstraint(Sketcher.Constraint("Horizontal", 1, 2, 4, 2))
sketch17.addConstraint(Sketcher.Constraint("Horizontal", 3, 2, 6, 2))
sketch17.addConstraint(Sketcher.Constraint("Horizontal", 5, 2, 8, 2))
sketch17.addConstraint(Sketcher.Constraint("Horizontal", 7, 2, 10, 2))
sketch17.addConstraint(Sketcher.Constraint("Horizontal", 9, 2, 12, 2))
sketch17.addConstraint(Sketcher.Constraint("Horizontal", 11, 2, 14, 2))
sketch17.addConstraint(Sketcher.Constraint("Equal", 3, 5))
sketch17.addConstraint(Sketcher.Constraint("Equal", 7, 9))
sketch17.addConstraint(Sketcher.Constraint("Equal", 11, 13))
sketch17.addConstraint(Sketcher.Constraint("Equal", 15, 0))
sketch17.addConstraint(Sketcher.Constraint("DistanceX", 1, 1, 1, 2, 1.0))
sketch17.addConstraint(Sketcher.Constraint("DistanceX", -1, 1, 0, 2, 19.0))
sketch17.addConstraint(Sketcher.Constraint("DistanceY", -1, 1, 0, 2, 2.0))
sketch17.addConstraint(Sketcher.Constraint("DistanceX", -1, 1, 4, 2, 21.0))
sketch17.addConstraint(Sketcher.Constraint("DistanceX", -1, 1, 8, 2, 23.0))
sketch17.addConstraint(Sketcher.Constraint("DistanceX", -1, 1, 12, 2, 25.0))
pad10 = doc.addObject("PartDesign::Pad", "Pad009")
body.addObject(pad10)
pad10.Profile = sketch17
pad10.Length = 2
pad10.Reversed = True

sketch18 = doc.addObject("Sketcher::SketchObject", "Sketch017")
body.addObject(sketch18)
sketch18.AttachmentSupport = (doc.XZ_Plane, [""])
sketch18.MapMode = "FlatFace"
sketch18.AttachmentOffset = App.Placement(App.Vector(0, 0, -1), App.Rotation())
add_polygon(sketch18, [(24, -3), (23, -3), (23, -4), (24, -4)])
add_polygon(sketch18, [(22, -3), (21, -3), (21, -4), (22, -4)])
add_polygon(sketch18, [(20, -3), (19, -3), (19, -4), (20, -4)])
add_polygon(sketch18, [(26, -4), (26, -3), (25, -3), (25, -4)])
sketch18.addConstraint(Sketcher.Constraint("Horizontal", 0))
sketch18.addConstraint(Sketcher.Constraint("Vertical", 1))
sketch18.addConstraint(Sketcher.Constraint("Horizontal", 2))
sketch18.addConstraint(Sketcher.Constraint("Vertical", 3))
sketch18.addConstraint(Sketcher.Constraint("Horizontal", 4))
sketch18.addConstraint(Sketcher.Constraint("Vertical", 5))
sketch18.addConstraint(Sketcher.Constraint("Horizontal", 6))
sketch18.addConstraint(Sketcher.Constraint("Vertical", 7))
sketch18.addConstraint(Sketcher.Constraint("Horizontal", 8))
sketch18.addConstraint(Sketcher.Constraint("Vertical", 9))
sketch18.addConstraint(Sketcher.Constraint("Horizontal", 10))
sketch18.addConstraint(Sketcher.Constraint("Vertical", 11))
sketch18.addConstraint(Sketcher.Constraint("Vertical", 12))
sketch18.addConstraint(Sketcher.Constraint("Horizontal", 13))
sketch18.addConstraint(Sketcher.Constraint("Vertical", 14))
sketch18.addConstraint(Sketcher.Constraint("Horizontal", 15))
sketch18.addConstraint(Sketcher.Constraint("Horizontal", 3, 2, 4, 2))
sketch18.addConstraint(Sketcher.Constraint("Horizontal", 2, 2, 5, 2))
sketch18.addConstraint(Sketcher.Constraint("Horizontal", 7, 2, 8, 2))
sketch18.addConstraint(Sketcher.Constraint("Horizontal", 6, 2, 9, 2))
sketch18.addConstraint(Sketcher.Constraint("Horizontal", 11, 2, 12, 2))
sketch18.addConstraint(Sketcher.Constraint("Horizontal", 10, 2, 14, 2))
sketch18.addConstraint(Sketcher.Constraint("Equal", 2, 4))
sketch18.addConstraint(Sketcher.Constraint("Equal", 6, 8))
sketch18.addConstraint(Sketcher.Constraint("Equal", 10, 13))
sketch18.addConstraint(Sketcher.Constraint("Equal", 15, 1))
sketch18.addConstraint(Sketcher.Constraint("DistanceX", 0, 2, 0, 1, 1.0))
sketch18.addConstraint(Sketcher.Constraint("DistanceX", -1, 1, 0, 2, 23.0))
sketch18.addConstraint(Sketcher.Constraint("DistanceY", 0, 2, -1, 1, 3.0))
sketch18.addConstraint(Sketcher.Constraint("DistanceX", -1, 1, 4, 2, 21.0))
sketch18.addConstraint(Sketcher.Constraint("DistanceX", -1, 1, 8, 2, 19.0))
sketch18.addConstraint(Sketcher.Constraint("DistanceX", -1, 1, 12, 2, 26.0))
pad11 = doc.addObject("PartDesign::Pad", "Pad010")
body.addObject(pad11)
pad11.Profile = sketch18
pad11.Length = 8

sketch19 = doc.addObject("Sketcher::SketchObject", "Sketch018")
body.addObject(sketch19)
sketch19.AttachmentSupport = (doc.YZ_Plane, [""])
sketch19.MapMode = "FlatFace"
sketch19.AttachmentOffset = App.Placement(App.Vector(0, 0, 26), App.Rotation())
sketch19.addGeometry(Part.LineSegment(App.Vector(2, -4, 0), App.Vector(2, -3.59, 0)), False)
sketch19.addGeometry(Part.ArcOfCircle(Part.Circle(App.Vector(1.52, -3.54, 0), App.Vector(0, 0, 1), 0.49), math.radians(-71), math.radians(-6)), False)
sketch19.addGeometry(Part.LineSegment(App.Vector(1.68, -4, 0), App.Vector(2, -4, 0)), False)
sketch19.addGeometry(Part.ArcOfCircle(Part.Circle(App.Vector(-6.5, -3.5, 0), App.Vector(0, 0, 1), 0.5), math.radians(90), math.radians(180)), False)
sketch19.addGeometry(Part.LineSegment(App.Vector(-6.5, -3, 0), App.Vector(-7, -3, 0)), False)
sketch19.addGeometry(Part.LineSegment(App.Vector(-7, -3, 0), App.Vector(-7, -3.5, 0)), False)
sketch19.addGeometry(Part.ArcOfCircle(Part.Circle(App.Vector(-6.5, -3.5, 0), App.Vector(0, 0, 1), 0.5), math.radians(180), math.radians(270)), False)
sketch19.addGeometry(Part.LineSegment(App.Vector(-7, -3.5, 0), App.Vector(-7, -4, 0)), False)
sketch19.addGeometry(Part.LineSegment(App.Vector(-7, -4, 0), App.Vector(-6.5, -4, 0)), False)
sketch19.addConstraint(Sketcher.Constraint("Coincident", 0, 2, 1, 2))
sketch19.addConstraint(Sketcher.Constraint("Coincident", 1, 1, 2, 1))
sketch19.addConstraint(Sketcher.Constraint("Coincident", 2, 2, 0, 1))
sketch19.addConstraint(Sketcher.Constraint("Tangent", 3, 1, 4, 1))
sketch19.addConstraint(Sketcher.Constraint("Coincident", 4, 2, 5, 1))
sketch19.addConstraint(Sketcher.Constraint("Tangent", 5, 2, 3, 2))
sketch19.addConstraint(Sketcher.Constraint("Tangent", 6, 1, 7, 1))
sketch19.addConstraint(Sketcher.Constraint("Coincident", 7, 2, 8, 1))
sketch19.addConstraint(Sketcher.Constraint("Tangent", 8, 2, 6, 2))
sketch19.addConstraint(Sketcher.Constraint("Vertical", 0))
sketch19.addConstraint(Sketcher.Constraint("Horizontal", 2))
sketch19.addConstraint(Sketcher.Constraint("Horizontal", 4))
sketch19.addConstraint(Sketcher.Constraint("Vertical", 5))
sketch19.addConstraint(Sketcher.Constraint("Vertical", 7))
sketch19.addConstraint(Sketcher.Constraint("Horizontal", 8))
sketch19.addConstraint(Sketcher.Constraint("Coincident", 6, 3, 3, 3))
sketch19.addConstraint(Sketcher.Constraint("Equal", 3, 6))
sketch19.addConstraint(Sketcher.Constraint("Horizontal", 2, 2, 7, 2))
sketch19.addConstraint(Sketcher.Constraint("Radius", 3, 0.5))
sketch19.addConstraint(Sketcher.Constraint("DistanceX", -1, 1, 0, 2, 2.0))
sketch19.addConstraint(Sketcher.Constraint("DistanceY", 1, 1, -1, 1, 4.0))
sketch19.addConstraint(Sketcher.Constraint("DistanceX", 4, 2, -1, 1, 7.0))
sketch19.addConstraint(Sketcher.Constraint("Radius", 1, 0.4854))
sketch19.addConstraint(Sketcher.Constraint("DistanceX", 2, 1, 2, 2, 0.324))
sketch19.addConstraint(Sketcher.Constraint("DistanceY", 0, 1, 0, 2, 0.406))
pocket4 = doc.addObject("PartDesign::Pocket", "Pocket003")
body.addObject(pocket4)
pocket4.Profile = sketch19
pocket4.Length = 80

doc.recompute()
